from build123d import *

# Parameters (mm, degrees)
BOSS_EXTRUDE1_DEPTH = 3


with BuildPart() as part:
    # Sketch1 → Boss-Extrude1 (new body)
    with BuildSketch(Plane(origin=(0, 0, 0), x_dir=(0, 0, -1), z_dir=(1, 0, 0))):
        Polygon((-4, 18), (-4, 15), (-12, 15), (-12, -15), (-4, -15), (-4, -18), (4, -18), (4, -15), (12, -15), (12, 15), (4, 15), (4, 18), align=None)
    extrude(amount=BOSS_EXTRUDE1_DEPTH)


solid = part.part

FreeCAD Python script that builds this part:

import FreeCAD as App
import Part
import Sketcher
Q = App.Units.Quantity

doc = App.newDocument("Part")
body = doc.addObject("PartDesign::Body", "Body")

# Sketch on YZ plane
sketch1 = body.newObject("Sketcher::SketchObject", "Sketch")
sketch1.AttachmentSupport = (doc.getObject("YZ_Plane"), [""])
sketch1.MapMode = "FlatFace"
sketch1.addGeometry([
    Part.LineSegment(App.Vector(18, 4, 0), App.Vector(15, 4, 0)),  # 0
    Part.LineSegment(App.Vector(15, 4, 0), App.Vector(15, 12, 0)),  # 1
    Part.LineSegment(App.Vector(15, 12, 0), App.Vector(-15, 12, 0)),  # 2
    Part.LineSegment(App.Vector(-15, 12, 0), App.Vector(-15, 4, 0)),  # 3
    Part.LineSegment(App.Vector(-15, 4, 0), App.Vector(-18, 4, 0)),  # 4
    Part.LineSegment(App.Vector(-18, 4, 0), App.Vector(-18, -4, 0)),  # 5
    Part.LineSegment(App.Vector(-18, -4, 0), App.Vector(-15, -4, 0)),  # 6
    Part.LineSegment(App.Vector(-15, -4, 0), App.Vector(-15, -12, 0)),  # 7
    Part.LineSegment(App.Vector(-15, -12, 0), App.Vector(15, -12, 0)),  # 8
    Part.LineSegment(App.Vector(15, -12, 0), App.Vector(15, -4, 0)),  # 9
    Part.LineSegment(App.Vector(15, -4, 0), App.Vector(18, -4, 0)),  # 10
    Part.LineSegment(App.Vector(18, -4, 0), App.Vector(18, 4, 0)),  # 11
], False)
sketch1.addConstraint([
    Sketcher.Constraint("Coincident", 0, 2, 1, 1),
    Sketcher.Constraint("Coincident", 1, 2, 2, 1),
    Sketcher.Constraint("Coincident", 2, 2, 3, 1),
    Sketcher.Constraint("Coincident", 3, 2, 4, 1),
    Sketcher.Constraint("Coincident", 4, 2, 5, 1),
    Sketcher.Constraint("Coincident", 5, 2, 6, 1),
    Sketcher.Constraint("Coincident", 6, 2, 7, 1),
    Sketcher.Constraint("Coincident", 7, 2, 8, 1),
    Sketcher.Constraint("Coincident", 8, 2, 9, 1),
    Sketcher.Constraint("Coincident", 9, 2, 10, 1),
    Sketcher.Constraint("Coincident", 10, 2, 11, 1),
    Sketcher.Constraint("Coincident", 11, 2, 0, 1),
    Sketcher.Constraint("Horizontal", 0),
    Sketcher.Constraint("Vertical", 1),
    Sketcher.Constraint("Horizontal", 2),
    Sketcher.Constraint("Vertical", 3),
    Sketcher.Constraint("Horizontal", 4),
    Sketcher.Constraint("Vertical", 5),
    Sketcher.Constraint("Horizontal", 6),
    Sketcher.Constraint("Vertical", 7),
    Sketcher.Constraint("Horizontal", 8),
    Sketcher.Constraint("Vertical", 9),
    Sketcher.Constraint("Horizontal", 10),
    Sketcher.Constraint("Vertical", 11),
    Sketcher.Constraint("Symmetric", 0, 2, 6, 2, -1, 1),
    Sketcher.Constraint("Symmetric", 2, 2, 8, 2, -1, 1),
    Sketcher.Constraint("Symmetric", 4, 2, 10, 2, -1, 1),
    Sketcher.Constraint("Symmetric", 0, 2, 3, 2, -2),
    Sketcher.Constraint("Equal", 3, 5),
    Sketcher.Constraint("DistanceX", 0, 2, 0, 1, Q("3 mm")),
    Sketcher.Constraint("DistanceX", 2, 2, 2, 1, Q("30 mm")),
    Sketcher.Constraint("DistanceY", 1, 1, 1, 2, Q("8 mm")),
])
pad1 = body.newObject("PartDesign::Pad", "Pad")
pad1.Profile = sketch1
pad1.Length = 3

doc.recompute()
